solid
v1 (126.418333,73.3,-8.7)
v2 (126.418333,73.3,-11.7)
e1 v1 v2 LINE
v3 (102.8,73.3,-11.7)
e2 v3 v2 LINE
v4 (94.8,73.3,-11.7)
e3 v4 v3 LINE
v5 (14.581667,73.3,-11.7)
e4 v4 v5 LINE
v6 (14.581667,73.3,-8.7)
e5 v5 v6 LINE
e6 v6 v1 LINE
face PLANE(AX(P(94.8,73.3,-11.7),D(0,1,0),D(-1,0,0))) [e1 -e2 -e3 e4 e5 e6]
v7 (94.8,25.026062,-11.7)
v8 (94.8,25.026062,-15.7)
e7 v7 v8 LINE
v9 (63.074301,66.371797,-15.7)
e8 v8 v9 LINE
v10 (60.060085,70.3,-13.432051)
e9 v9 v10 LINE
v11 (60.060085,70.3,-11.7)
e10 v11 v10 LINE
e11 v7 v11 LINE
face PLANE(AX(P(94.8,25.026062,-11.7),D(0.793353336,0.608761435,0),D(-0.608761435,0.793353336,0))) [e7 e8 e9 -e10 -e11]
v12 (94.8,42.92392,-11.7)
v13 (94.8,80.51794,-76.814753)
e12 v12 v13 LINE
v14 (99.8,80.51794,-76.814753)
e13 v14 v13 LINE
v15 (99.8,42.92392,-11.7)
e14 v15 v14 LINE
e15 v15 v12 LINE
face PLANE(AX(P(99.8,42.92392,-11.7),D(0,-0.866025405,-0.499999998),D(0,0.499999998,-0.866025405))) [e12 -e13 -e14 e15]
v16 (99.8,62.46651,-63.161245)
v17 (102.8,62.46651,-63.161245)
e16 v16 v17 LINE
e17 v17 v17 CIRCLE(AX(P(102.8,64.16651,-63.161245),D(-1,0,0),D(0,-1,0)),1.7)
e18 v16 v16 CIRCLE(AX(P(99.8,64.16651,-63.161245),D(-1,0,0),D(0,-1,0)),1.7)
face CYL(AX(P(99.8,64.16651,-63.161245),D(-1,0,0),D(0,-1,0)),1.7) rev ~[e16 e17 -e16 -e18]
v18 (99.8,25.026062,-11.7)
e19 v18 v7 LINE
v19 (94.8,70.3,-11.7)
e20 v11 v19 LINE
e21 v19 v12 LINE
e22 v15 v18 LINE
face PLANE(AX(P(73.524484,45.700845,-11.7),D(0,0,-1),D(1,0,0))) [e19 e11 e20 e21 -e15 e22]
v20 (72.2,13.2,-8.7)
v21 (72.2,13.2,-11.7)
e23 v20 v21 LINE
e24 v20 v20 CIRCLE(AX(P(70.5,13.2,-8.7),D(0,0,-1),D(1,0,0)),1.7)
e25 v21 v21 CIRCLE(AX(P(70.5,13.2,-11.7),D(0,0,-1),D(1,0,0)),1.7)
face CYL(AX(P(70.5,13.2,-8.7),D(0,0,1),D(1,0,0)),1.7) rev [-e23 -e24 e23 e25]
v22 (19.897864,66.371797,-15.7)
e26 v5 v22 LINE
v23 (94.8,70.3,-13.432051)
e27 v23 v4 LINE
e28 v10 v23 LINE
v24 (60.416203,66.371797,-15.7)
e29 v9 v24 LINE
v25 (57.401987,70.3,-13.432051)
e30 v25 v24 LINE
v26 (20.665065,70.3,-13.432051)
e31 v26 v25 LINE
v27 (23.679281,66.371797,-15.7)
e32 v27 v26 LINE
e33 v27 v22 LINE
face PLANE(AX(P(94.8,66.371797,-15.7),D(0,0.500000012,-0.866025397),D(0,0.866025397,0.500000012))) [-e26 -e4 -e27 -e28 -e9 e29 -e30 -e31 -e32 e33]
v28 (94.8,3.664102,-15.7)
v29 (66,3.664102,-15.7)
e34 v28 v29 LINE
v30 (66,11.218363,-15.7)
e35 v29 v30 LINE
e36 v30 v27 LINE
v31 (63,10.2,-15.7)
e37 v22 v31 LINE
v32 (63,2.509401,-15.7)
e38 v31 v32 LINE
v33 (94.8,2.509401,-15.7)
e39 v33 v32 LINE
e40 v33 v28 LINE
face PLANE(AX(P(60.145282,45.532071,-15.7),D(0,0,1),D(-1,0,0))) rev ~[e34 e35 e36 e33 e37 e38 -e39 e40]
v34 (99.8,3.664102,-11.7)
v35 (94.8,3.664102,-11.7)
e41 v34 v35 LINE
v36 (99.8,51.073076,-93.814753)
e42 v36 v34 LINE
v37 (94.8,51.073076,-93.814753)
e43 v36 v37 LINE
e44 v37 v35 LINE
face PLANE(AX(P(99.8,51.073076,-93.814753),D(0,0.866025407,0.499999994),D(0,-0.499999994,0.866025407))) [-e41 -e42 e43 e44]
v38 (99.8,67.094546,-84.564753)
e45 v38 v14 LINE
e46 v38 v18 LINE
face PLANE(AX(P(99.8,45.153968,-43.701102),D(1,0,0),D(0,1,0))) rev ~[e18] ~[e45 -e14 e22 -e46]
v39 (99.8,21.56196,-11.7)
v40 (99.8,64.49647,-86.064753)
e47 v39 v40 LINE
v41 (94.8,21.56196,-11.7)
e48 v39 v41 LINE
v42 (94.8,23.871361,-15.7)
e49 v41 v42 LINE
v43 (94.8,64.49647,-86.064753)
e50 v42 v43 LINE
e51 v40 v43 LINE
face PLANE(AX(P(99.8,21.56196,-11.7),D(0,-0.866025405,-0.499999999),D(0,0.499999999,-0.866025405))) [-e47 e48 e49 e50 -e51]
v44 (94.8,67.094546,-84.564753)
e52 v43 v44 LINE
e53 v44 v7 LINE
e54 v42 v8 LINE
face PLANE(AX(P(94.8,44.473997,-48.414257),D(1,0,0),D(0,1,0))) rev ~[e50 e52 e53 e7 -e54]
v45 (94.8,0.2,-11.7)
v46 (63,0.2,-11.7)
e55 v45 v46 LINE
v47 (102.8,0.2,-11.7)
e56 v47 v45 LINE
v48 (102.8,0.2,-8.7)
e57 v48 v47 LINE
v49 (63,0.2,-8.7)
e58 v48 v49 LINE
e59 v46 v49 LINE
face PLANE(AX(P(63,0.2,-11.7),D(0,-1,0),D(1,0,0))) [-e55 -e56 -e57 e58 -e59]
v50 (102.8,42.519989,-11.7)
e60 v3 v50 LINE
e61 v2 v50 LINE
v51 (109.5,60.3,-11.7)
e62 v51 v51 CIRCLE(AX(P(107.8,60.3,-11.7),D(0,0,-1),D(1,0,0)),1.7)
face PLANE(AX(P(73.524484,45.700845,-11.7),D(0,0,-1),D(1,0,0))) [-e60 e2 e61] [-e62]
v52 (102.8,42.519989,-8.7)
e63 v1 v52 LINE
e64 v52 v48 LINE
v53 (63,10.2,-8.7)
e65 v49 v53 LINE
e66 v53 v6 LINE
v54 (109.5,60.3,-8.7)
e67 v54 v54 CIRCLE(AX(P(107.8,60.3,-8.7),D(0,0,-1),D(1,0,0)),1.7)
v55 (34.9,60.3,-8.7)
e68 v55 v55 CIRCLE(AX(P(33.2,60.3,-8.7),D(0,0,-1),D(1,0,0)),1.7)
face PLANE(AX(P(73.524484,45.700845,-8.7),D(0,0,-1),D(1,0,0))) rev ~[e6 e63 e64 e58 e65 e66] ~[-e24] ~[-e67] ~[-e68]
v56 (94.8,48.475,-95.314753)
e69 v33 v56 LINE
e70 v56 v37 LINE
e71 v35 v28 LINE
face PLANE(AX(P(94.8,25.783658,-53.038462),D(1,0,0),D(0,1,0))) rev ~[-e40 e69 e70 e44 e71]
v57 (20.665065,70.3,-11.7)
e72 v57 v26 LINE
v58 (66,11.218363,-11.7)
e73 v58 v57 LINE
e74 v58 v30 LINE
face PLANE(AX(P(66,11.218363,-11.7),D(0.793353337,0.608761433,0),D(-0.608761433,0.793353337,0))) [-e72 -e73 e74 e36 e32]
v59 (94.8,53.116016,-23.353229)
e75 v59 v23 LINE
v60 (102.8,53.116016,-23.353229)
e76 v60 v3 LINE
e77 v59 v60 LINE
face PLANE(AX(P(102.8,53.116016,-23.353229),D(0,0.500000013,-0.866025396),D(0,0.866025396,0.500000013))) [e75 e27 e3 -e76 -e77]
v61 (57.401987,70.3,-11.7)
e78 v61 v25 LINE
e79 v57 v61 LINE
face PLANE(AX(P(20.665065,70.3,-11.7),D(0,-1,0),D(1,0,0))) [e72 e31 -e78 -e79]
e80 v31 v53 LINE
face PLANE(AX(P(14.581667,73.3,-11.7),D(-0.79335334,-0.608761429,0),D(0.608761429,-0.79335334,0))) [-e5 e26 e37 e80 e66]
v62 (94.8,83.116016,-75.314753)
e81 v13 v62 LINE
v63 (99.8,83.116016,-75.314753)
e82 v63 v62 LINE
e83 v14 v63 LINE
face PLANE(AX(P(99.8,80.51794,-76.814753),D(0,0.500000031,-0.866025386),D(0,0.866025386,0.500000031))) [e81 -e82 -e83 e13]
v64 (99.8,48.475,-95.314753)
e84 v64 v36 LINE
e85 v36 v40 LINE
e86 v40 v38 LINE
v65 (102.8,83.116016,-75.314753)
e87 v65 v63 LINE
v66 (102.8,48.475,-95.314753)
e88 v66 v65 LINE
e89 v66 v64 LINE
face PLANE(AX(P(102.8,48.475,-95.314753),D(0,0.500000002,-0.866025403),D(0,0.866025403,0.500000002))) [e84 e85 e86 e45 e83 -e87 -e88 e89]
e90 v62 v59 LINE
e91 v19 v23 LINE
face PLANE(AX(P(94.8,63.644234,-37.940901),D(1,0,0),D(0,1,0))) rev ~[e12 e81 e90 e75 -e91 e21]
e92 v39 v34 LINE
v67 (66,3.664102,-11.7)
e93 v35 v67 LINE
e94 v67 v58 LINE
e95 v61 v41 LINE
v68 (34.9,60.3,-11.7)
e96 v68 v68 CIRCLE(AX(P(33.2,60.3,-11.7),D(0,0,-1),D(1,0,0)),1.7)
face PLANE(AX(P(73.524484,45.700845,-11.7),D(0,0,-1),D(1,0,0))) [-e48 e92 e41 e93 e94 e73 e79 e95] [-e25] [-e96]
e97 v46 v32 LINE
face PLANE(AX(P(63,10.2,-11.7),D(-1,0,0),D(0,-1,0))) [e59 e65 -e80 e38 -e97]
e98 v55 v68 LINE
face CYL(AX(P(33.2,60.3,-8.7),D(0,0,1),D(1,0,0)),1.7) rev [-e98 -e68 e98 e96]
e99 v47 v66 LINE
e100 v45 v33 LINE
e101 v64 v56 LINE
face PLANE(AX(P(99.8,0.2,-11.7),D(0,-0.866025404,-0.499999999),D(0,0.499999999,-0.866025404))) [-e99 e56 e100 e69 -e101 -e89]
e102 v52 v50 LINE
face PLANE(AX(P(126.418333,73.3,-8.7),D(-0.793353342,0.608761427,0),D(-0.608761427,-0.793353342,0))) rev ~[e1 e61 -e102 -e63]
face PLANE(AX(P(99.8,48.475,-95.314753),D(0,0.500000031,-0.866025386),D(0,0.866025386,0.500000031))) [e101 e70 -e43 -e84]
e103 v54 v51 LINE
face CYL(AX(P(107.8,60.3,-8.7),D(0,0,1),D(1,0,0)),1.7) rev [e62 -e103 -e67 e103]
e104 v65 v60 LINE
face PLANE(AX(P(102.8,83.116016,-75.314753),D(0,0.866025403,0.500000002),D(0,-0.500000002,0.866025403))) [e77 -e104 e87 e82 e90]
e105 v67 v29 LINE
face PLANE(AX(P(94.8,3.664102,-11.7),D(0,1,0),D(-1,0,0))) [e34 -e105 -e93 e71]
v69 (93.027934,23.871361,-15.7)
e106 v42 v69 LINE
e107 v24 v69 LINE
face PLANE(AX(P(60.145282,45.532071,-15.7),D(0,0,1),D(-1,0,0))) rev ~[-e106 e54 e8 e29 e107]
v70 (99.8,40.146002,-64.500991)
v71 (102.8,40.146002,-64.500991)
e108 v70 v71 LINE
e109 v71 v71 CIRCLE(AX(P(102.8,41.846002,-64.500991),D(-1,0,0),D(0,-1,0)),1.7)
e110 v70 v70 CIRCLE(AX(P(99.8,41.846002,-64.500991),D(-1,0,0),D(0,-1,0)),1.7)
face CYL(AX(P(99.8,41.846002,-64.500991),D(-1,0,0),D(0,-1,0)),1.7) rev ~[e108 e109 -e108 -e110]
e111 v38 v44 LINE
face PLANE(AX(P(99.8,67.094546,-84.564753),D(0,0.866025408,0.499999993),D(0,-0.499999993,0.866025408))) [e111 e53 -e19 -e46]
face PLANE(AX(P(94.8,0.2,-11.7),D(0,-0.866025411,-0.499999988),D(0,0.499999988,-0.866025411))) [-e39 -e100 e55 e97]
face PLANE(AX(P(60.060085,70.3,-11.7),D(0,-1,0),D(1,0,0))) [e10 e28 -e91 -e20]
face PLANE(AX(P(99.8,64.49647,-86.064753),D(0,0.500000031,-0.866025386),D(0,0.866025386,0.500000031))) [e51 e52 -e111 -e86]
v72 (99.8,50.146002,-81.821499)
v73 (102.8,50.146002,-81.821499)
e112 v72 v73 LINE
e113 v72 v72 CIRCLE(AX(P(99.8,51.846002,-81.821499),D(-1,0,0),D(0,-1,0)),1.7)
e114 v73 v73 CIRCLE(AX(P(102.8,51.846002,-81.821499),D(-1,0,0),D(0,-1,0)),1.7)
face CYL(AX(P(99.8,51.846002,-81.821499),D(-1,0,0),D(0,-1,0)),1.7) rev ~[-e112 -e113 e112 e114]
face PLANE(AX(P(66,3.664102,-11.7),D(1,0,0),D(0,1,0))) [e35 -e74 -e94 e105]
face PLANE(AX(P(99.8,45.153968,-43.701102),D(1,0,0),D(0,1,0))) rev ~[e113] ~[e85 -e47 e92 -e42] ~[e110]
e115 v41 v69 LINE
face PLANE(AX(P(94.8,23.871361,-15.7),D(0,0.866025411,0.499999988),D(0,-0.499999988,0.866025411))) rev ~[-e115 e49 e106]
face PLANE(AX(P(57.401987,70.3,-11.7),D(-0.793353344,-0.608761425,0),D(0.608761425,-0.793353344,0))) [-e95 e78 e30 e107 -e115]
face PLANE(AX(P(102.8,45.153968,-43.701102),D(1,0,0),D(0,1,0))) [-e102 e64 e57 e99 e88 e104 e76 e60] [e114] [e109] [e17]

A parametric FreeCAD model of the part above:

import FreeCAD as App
import Part
import Sketcher
Q = App.Units.Quantity


def add_polygon(sketch, points):
    """Adds a closed chain of lines whose ends are joined by coincident constraints."""
    first, n = sketch.GeometryCount, len(points)
    for a, b in zip(points, points[1:] + points[:1]):
        sketch.addGeometry(Part.LineSegment(App.Vector(*a, 0), App.Vector(*b, 0)), False)
    for i in range(n):
        sketch.addConstraint(Sketcher.Constraint("Coincident", first + i, 2, first + (i + 1) % n, 1))

doc = App.newDocument("Part")
body = doc.addObject("PartDesign::Body", "Body")

# Sketch on XY plane
sketch1 = body.newObject("Sketcher::SketchObject", "Sketch")
sketch1.AttachmentSupport = (doc.getObject("XY_Plane"), [""])
sketch1.MapMode = "FlatFace"
sketch1.AttachmentOffset = App.Placement(App.Vector(0, 0, -8.7), App.Rotation())
add_polygon(sketch1, [(63, 0.2), (63, 10.2), (14.6, 73.3), (126.4, 73.3), (102.8, 42.5), (102.8, 0.2)])  # lines 0-5
sketch1.addGeometry(Part.Circle(App.Vector(33.2, 60.3, 0), App.Vector(0, 0, 1), 1.7), False)  # 6
sketch1.addGeometry(Part.Circle(App.Vector(107.8, 60.3, 0), App.Vector(0, 0, 1), 1.7), False)  # 7
sketch1.addGeometry(Part.Circle(App.Vector(70.5, 13.2, 0), App.Vector(0, 0, 1), 1.7), False)  # 8
sketch1.addConstraint([
    Sketcher.Constraint("Vertical", 0),
    Sketcher.Constraint("Horizontal", 2),
    Sketcher.Constraint("Vertical", 4),
    Sketcher.Constraint("Horizontal", 5),
    Sketcher.Constraint("Equal", 6, 7),
    Sketcher.Constraint("Equal", 7, 8),
    Sketcher.Constraint("Horizontal", 6, 3, 7, 3),
    Sketcher.Constraint("Diameter", 6, 3.4),
    Sketcher.Constraint("DistanceY", 0, 1, 0, 2, 10.0),
    Sketcher.Constraint("DistanceX", 5, 2, 5, 1, 39.8),
    Sketcher.Constraint("DistanceX", -1, 1, 0, 2, 63.0),
    Sketcher.Constraint("Angle", 1, Q("127.5 deg")),
    Sketcher.Constraint("Angle", 3, Q("-127.5 deg")),
    Sketcher.Constraint("DistanceY", 0, 2, 8, 3, 3.0),
    Sketcher.Constraint("DistanceY", 6, 3, 1, 2, 13.0),
    Sketcher.Constraint("DistanceX", 3, 2, 7, 3, 5.0),
    Sketcher.Constraint("DistanceX", -1, 1, 6, 3, 33.2),
    Sketcher.Constraint("DistanceY", -1, 1, 6, 3, 60.3),
    Sketcher.Constraint("DistanceX", -1, 1, 8, 3, 70.5),
    Sketcher.Constraint("DistanceY", -1, 1, 8, 3, 13.2),
    Sketcher.Constraint("DistanceY", 4, 2, 4, 1, 42.319989),
])
pad1 = body.newObject("PartDesign::Pad", "Pad")
pad1.Profile = sketch1
pad1.Length = 3
pad1.Reversed = True

# Sketch on YZ plane
sketch2 = body.newObject("Sketcher::SketchObject", "Sketch001")
sketch2.AttachmentSupport = (doc.getObject("YZ_Plane"), [""])
sketch2.MapMode = "FlatFace"
sketch2.AttachmentOffset = App.Placement(App.Vector(0, 0, 102.8), App.Rotation())
add_polygon(sketch2, [(0, -12), (48, -95), (83, -75), (53, -23), (73, -12)])  # lines 0-4
sketch2.addConstraint([
    Sketcher.Constraint("Horizontal", 4),
    Sketcher.Constraint("Perpendicular", 0, 1),
    Sketcher.Constraint("Perpendicular", 1, 2),
    Sketcher.Constraint("Perpendicular", 2, 3),
    Sketcher.Constraint("Angle", 0, Q("-60 deg")),
    Sketcher.Constraint("Distance", 1, 40.0),
    Sketcher.Constraint("Distance", 2, 60.0),
    Sketcher.Constraint("DistanceX", 4, 2, 4, 1, 73.1),
    Sketcher.Constraint("DistanceX", -1, 1, 3, 2, 73.3),
    Sketcher.Constraint("DistanceY", 3, 2, -1, 1, 11.7),
])
pad2 = body.newObject("PartDesign::Pad", "Pad001")
pad2.Profile = sketch2
pad2.Length = 3
pad2.Reversed = True

# Sketch on YZ plane
sketch3 = body.newObject("Sketcher::SketchObject", "Sketch002")
sketch3.AttachmentSupport = (doc.getObject("YZ_Plane"), [""])
sketch3.MapMode = "FlatFace"
sketch3.AttachmentOffset = App.Placement(App.Vector(0, 0, 99.8), App.Rotation())
sketch3.addGeometry([
    Part.Circle(App.Vector(51.8, -81.8, 0), App.Vector(0, 0, 1), 1.7),
    Part.Circle(App.Vector(41.8, -64.5, 0), App.Vector(0, 0, 1), 1.7),
    Part.Circle(App.Vector(64.2, -63.2, 0), App.Vector(0, 0, 1), 1.7),
], False)
sketch3.addConstraint([
    Sketcher.Constraint("Equal", 0, 1),
    Sketcher.Constraint("Equal", 1, 2),
    Sketcher.Constraint("Diameter", 0, 3.4),
    Sketcher.Constraint("DistanceX", 1, 3, 0, 3, 10.0),
    Sketcher.Constraint("DistanceY", 0, 3, -1, 1, 81.821499),
    Sketcher.Constraint("DistanceY", 1, 3, -1, 1, 64.500991),
    Sketcher.Constraint("DistanceX", -1, 1, 2, 3, 64.16651),
    Sketcher.Constraint("DistanceX", 0, 3, 2, 3, 12.320508),
    Sketcher.Constraint("DistanceY", 2, 3, -1, 1, 63.161245),
])
pocket1 = body.newObject("PartDesign::Pocket", "Pocket")
pocket1.Profile = sketch3
pocket1.Type = "ThroughAll"
pocket1.Reversed = True

# Sketch on YZ plane
sketch4 = body.newObject("Sketcher::SketchObject", "Sketch003")
sketch4.AttachmentSupport = (doc.getObject("YZ_Plane"), [""])
sketch4.MapMode = "FlatFace"
sketch4.AttachmentOffset = App.Placement(App.Vector(0, 0, 99.8), App.Rotation())
add_polygon(sketch4, [(48.5, -95.3), (0.2, -11.7), (3.7, -11.7), (51.1, -93.8)])  # lines 0-3
add_polygon(sketch4, [(80.5, -76.8), (42.9, -11.7), (73.3, -11.7), (53.1, -23.4), (83.1, -75.3)])  # lines 4-8
add_polygon(sketch4, [(64.5, -86.1), (21.6, -11.7), (25, -11.7), (67.1, -84.6)])  # lines 9-12
sketch4.addConstraint([
    Sketcher.Constraint("Horizontal", 1),
    Sketcher.Constraint("Horizontal", 5),
    Sketcher.Constraint("Horizontal", 10),
    Sketcher.Constraint("Parallel", 0, 2),
    Sketcher.Constraint("Perpendicular", 2, 3),
    Sketcher.Constraint("Perpendicular", 3, 4),
    Sketcher.Constraint("Perpendicular", 4, 6),
    Sketcher.Constraint("Perpendicular", 6, 7),
    Sketcher.Constraint("Perpendicular", 7, 8),
    Sketcher.Constraint("Perpendicular", 8, 9),
    Sketcher.Constraint("Parallel", 9, 11),
    Sketcher.Constraint("Perpendicular", 11, 12),
    Sketcher.Constraint("Horizontal", 1, 2, 4, 2),
    Sketcher.Constraint("Horizontal", 5, 2, 9, 2),
    Sketcher.Constraint("Equal", 1, 10),
    Sketcher.Constraint("Equal", 3, 8),
    Sketcher.Constraint("Angle", 0, Q("120 deg")),
    Sketcher.Constraint("Distance", 3, 3.0),
    Sketcher.Constraint("Distance", 7, 60.0),
    Sketcher.Constraint("DistanceY", 3, 2, 7, 2, 20.0),
    Sketcher.Constraint("DistanceX", -1, 1, 0, 2, 0.2),
    Sketcher.Constraint("DistanceY", 0, 2, -1, 1, 11.7),
    Sketcher.Constraint("DistanceX", -1, 1, 5, 2, 73.3),
    Sketcher.Constraint("Distance", 0, 96.55),
    Sketcher.Constraint("DistanceY", 11, 2, 8, 2, 7.75),
    Sketcher.Constraint("DistanceX", -1, 1, 9, 2, 21.56196),
])
pad3 = body.newObject("PartDesign::Pad", "Pad002")
pad3.Profile = sketch4
pad3.Length = 5
pad3.Reversed = True

# Sketch on XY plane
sketch5 = body.newObject("Sketcher::SketchObject", "Sketch004")
sketch5.AttachmentSupport = (doc.getObject("XY_Plane"), [""])
sketch5.MapMode = "FlatFace"
sketch5.AttachmentOffset = App.Placement(App.Vector(0, 0, -11.7), App.Rotation())
add_polygon(sketch5, [(66, 3.7), (94.8, 3.7), (94.8, 0.2), (63, 0.2), (63, 10.2), (14.6, 73.3), (94.8, 73.3), (94.8, 70.3), (60.1, 70.3), (94.8, 25), (94.8, 21.6), (57.4, 70.3), (20.7, 70.3), (66, 11.2)])  # lines 0-13
sketch5.addConstraint([
    Sketcher.Constraint("Horizontal", 0),
    Sketcher.Constraint("Vertical", 1),
    Sketcher.Constraint("Horizontal", 2),
    Sketcher.Constraint("Vertical", 3),
    Sketcher.Constraint("Horizontal", 5),
    Sketcher.Constraint("Vertical", 6),
    Sketcher.Constraint("Horizontal", 7),
    Sketcher.Constraint("Vertical", 9),
    Sketcher.Constraint("Horizontal", 11),
    Sketcher.Constraint("Vertical", 13),
    Sketcher.Constraint("Parallel", 4, 8),
    Sketcher.Constraint("Parallel", 8, 10),
    Sketcher.Constraint("Parallel", 10, 12),
    Sketcher.Constraint("Horizontal", 7, 2, 10, 2),
    Sketcher.Constraint("Vertical", 1, 2, 5, 2),
    Sketcher.Constraint("Vertical", 6, 2, 8, 2),
    Sketcher.Constraint("Equal", 1, 9),
    Sketcher.Constraint("DistanceY", 3, 1, 3, 2, 10.0),
    Sketcher.Constraint("DistanceY", 6, 2, 6, 1, 3.0),
    Sketcher.Constraint("DistanceX", 0, 1, 0, 2, 28.8),
    Sketcher.Constraint("DistanceX", 2, 2, 2, 1, 31.8),
    Sketcher.Constraint("DistanceX", -1, 1, 2, 2, 63.0),
    Sketcher.Constraint("Angle", 4, Q("127.5 deg")),
    Sketcher.Constraint("DistanceY", -1, 1, 1, 2, 0.2),
    Sketcher.Constraint("DistanceY", -1, 1, 4, 2, 73.3),
    Sketcher.Constraint("DistanceY", 1, 2, 1, 1, 3.464102),
    Sketcher.Constraint("DistanceY", 13, 2, 13, 1, 7.554261),
    Sketcher.Constraint("Distance", 8, 57.06655),
])
pad4 = body.newObject("PartDesign::Pad", "Pad003")
pad4.Profile = sketch5
pad4.Length = 4
pad4.Reversed = True

# Sketch on YZ plane
sketch6 = body.newObject("Sketcher::SketchObject", "Sketch005")
sketch6.AttachmentSupport = (doc.getObject("YZ_Plane"), [""])
sketch6.MapMode = "FlatFace"
sketch6.AttachmentOffset = App.Placement(App.Vector(0, 0, 94.8), App.Rotation())
add_polygon(sketch6, [(0.2, -15.7), (2.5, -15.7), (0.2, -11.7)])  # lines 0-2
add_polygon(sketch6, [(23.9, -15.7), (21.6, -11.7), (21.6, -15.7)])  # lines 3-5
sketch6.addConstraint([
    Sketcher.Constraint("Horizontal", 0),
    Sketcher.Constraint("Vertical", 2),
    Sketcher.Constraint("Vertical", 4),
    Sketcher.Constraint("Horizontal", 5),
    Sketcher.Constraint("Parallel", 1, 3),
    Sketcher.Constraint("Horizontal", 1, 2, 3, 2),
    Sketcher.Constraint("Horizontal", 2, 2, 4, 2),
    Sketcher.Constraint("DistanceY", 2, 2, 2, 1, 4.0),
    Sketcher.Constraint("Angle", 1, Q("119.999999 deg")),
    Sketcher.Constraint("DistanceY", 0, 2, -1, 1, 15.7),
    Sketcher.Constraint("DistanceX", -1, 1, 1, 2, 0.2),
    Sketcher.Constraint("DistanceX", -1, 1, 3, 2, 21.56196),
])
pocket2 = body.newObject("PartDesign::Pocket", "Pocket001")
pocket2.Profile = sketch6
pocket2.Length = 31.8

# Sketch on YZ plane
sketch7 = body.newObject("Sketcher::SketchObject", "Sketch006")
sketch7.AttachmentSupport = (doc.getObject("YZ_Plane"), [""])
sketch7.MapMode = "FlatFace"
sketch7.AttachmentOffset = App.Placement(App.Vector(0, 0, 94.8), App.Rotation())
add_polygon(sketch7, [(73.3, -15.7), (73.3, -11.7), (66.4, -15.7)])  # lines 0-2
sketch7.addConstraint([
    Sketcher.Constraint("Vertical", 0),
    Sketcher.Constraint("Horizontal", 2),
    Sketcher.Constraint("DistanceY", 0, 1, 0, 2, 4.0),
    Sketcher.Constraint("Angle", 1, Q("-149.999999 deg")),
    Sketcher.Constraint("DistanceX", -1, 1, 0, 2, 73.3),
    Sketcher.Constraint("DistanceY", 0, 2, -1, 1, 11.7),
])
pocket3 = body.newObject("PartDesign::Pocket", "Pocket002")
pocket3.Profile = sketch7
pocket3.Type = "ThroughAll"

doc.recompute()
